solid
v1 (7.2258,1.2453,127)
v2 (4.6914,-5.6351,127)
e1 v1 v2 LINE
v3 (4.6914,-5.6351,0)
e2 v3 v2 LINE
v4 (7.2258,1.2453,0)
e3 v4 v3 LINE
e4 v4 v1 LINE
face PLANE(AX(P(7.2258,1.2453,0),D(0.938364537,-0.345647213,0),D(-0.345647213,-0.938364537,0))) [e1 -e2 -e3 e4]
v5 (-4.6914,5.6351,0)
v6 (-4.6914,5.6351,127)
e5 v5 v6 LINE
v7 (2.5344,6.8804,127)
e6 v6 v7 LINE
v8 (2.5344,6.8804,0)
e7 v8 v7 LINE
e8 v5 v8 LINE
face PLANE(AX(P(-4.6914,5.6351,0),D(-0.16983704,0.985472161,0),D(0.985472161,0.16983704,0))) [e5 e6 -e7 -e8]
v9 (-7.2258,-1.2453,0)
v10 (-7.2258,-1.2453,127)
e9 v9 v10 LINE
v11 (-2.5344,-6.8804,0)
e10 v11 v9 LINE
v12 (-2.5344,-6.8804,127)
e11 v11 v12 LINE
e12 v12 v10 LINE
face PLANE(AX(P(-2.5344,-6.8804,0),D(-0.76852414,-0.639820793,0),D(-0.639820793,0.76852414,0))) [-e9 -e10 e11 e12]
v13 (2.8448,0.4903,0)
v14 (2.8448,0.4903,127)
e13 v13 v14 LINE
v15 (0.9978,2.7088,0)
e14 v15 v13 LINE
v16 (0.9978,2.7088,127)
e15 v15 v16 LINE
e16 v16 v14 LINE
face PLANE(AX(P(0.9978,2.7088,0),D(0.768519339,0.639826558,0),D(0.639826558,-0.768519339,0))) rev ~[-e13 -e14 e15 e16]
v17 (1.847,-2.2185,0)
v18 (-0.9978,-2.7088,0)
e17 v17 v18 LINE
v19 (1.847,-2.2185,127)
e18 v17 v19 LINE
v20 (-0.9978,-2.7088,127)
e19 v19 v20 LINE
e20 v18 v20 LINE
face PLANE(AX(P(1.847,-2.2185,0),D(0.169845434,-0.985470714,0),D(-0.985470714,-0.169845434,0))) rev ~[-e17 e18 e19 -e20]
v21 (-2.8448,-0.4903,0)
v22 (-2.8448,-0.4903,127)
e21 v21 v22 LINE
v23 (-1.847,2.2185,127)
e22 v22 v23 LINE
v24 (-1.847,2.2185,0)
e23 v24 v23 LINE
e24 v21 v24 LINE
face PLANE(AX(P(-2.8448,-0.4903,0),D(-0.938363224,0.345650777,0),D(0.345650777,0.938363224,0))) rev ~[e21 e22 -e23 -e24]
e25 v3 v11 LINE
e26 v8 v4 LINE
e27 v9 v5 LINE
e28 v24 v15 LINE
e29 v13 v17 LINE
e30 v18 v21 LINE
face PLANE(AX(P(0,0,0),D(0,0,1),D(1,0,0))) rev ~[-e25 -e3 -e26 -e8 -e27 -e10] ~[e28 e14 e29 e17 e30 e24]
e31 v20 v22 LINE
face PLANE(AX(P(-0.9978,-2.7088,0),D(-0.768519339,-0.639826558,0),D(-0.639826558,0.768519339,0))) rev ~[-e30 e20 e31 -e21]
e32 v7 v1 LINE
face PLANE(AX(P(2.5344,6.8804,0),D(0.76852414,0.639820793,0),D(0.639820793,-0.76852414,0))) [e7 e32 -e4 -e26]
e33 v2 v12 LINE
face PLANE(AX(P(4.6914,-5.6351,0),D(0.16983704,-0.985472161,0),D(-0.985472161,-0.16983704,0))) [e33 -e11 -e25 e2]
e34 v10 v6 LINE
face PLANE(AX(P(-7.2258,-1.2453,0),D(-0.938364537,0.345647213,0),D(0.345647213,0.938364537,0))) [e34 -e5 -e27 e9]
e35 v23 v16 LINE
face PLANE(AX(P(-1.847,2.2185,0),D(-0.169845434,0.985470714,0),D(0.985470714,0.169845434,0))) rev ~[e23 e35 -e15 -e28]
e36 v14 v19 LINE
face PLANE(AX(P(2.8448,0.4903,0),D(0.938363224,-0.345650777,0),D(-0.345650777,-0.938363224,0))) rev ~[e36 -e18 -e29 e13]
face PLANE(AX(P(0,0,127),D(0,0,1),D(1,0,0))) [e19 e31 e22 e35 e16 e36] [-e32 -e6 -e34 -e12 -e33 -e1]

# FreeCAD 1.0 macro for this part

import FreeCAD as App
import Part
import Sketcher
Q = App.Units.Quantity


def add_polygon(sketch, points):
    """Adds a closed chain of lines whose ends are joined by coincident constraints."""
    first, n = sketch.GeometryCount, len(points)
    for a, b in zip(points, points[1:] + points[:1]):
        sketch.addGeometry(Part.LineSegment(App.Vector(*a, 0), App.Vector(*b, 0)), False)
    for i in range(n):
        sketch.addConstraint(Sketcher.Constraint("Coincident", first + i, 2, first + (i + 1) % n, 1))

doc = App.newDocument("Part")
body = doc.addObject("PartDesign::Body", "Body")

# Sketch on XY plane
sketch1 = doc.addObject("Sketcher::SketchObject", "Sketch")
body.addObject(sketch1)
sketch1.AttachmentSupport = (doc.XY_Plane, [""])
sketch1.MapMode = "FlatFace"
add_polygon(sketch1, [(7.2, 1.2), (2.5, 6.9), (-4.7, 5.6), (-7.2, -1.2), (-2.5, -6.9), (4.7, -5.6)])  # lines 0-5
add_polygon(sketch1, [(-2.8, -0.5), (-1.8, 2.2), (1, 2.7), (2.8, 0.5), (1.8, -2.2), (-1, -2.7)])  # lines 6-11
sketch1.addConstraint([
    Sketcher.Constraint("Symmetric", 0, 2, 3, 2, -1, 1),
    Sketcher.Constraint("Symmetric", 1, 2, 4, 2, -1, 1),
    Sketcher.Constraint("Symmetric", 2, 2, 5, 2, -1, 1),
    Sketcher.Constraint("Symmetric", 6, 2, 9, 2, -1, 1),
    Sketcher.Constraint("Symmetric", 7, 2, 10, 2, -1, 1),
    Sketcher.Constraint("Symmetric", 8, 2, 11, 2, -1, 1),
    Sketcher.Constraint("Parallel", 5, 6),
    Sketcher.Constraint("Parallel", 4, 7),
    Sketcher.Constraint("Parallel", 3, 8),
    Sketcher.Constraint("Equal", 0, 1),
    Sketcher.Constraint("Equal", 1, 2),
    Sketcher.Constraint("Equal", 6, 7),
    Sketcher.Constraint("Equal", 7, 8),
    Sketcher.Constraint("Angle", 7, Q("9.7788 deg")),
    Sketcher.Constraint("Angle", 8, Q("-50.221 deg")),
    Sketcher.Constraint("DistanceX", -1, 1, 8, 2, Q("0.112 in")),
    Sketcher.Constraint("DistanceX", 6, 2, 7, 2, Q("0.112 in")),
    Sketcher.Constraint("DistanceX", 1, 2, -1, 1, Q("0.1847 in")),
])
pad1 = doc.addObject("PartDesign::Pad", "Pad")
body.addObject(pad1)
pad1.Profile = sketch1
pad1.Length = Q("5 in")

doc.recompute()
